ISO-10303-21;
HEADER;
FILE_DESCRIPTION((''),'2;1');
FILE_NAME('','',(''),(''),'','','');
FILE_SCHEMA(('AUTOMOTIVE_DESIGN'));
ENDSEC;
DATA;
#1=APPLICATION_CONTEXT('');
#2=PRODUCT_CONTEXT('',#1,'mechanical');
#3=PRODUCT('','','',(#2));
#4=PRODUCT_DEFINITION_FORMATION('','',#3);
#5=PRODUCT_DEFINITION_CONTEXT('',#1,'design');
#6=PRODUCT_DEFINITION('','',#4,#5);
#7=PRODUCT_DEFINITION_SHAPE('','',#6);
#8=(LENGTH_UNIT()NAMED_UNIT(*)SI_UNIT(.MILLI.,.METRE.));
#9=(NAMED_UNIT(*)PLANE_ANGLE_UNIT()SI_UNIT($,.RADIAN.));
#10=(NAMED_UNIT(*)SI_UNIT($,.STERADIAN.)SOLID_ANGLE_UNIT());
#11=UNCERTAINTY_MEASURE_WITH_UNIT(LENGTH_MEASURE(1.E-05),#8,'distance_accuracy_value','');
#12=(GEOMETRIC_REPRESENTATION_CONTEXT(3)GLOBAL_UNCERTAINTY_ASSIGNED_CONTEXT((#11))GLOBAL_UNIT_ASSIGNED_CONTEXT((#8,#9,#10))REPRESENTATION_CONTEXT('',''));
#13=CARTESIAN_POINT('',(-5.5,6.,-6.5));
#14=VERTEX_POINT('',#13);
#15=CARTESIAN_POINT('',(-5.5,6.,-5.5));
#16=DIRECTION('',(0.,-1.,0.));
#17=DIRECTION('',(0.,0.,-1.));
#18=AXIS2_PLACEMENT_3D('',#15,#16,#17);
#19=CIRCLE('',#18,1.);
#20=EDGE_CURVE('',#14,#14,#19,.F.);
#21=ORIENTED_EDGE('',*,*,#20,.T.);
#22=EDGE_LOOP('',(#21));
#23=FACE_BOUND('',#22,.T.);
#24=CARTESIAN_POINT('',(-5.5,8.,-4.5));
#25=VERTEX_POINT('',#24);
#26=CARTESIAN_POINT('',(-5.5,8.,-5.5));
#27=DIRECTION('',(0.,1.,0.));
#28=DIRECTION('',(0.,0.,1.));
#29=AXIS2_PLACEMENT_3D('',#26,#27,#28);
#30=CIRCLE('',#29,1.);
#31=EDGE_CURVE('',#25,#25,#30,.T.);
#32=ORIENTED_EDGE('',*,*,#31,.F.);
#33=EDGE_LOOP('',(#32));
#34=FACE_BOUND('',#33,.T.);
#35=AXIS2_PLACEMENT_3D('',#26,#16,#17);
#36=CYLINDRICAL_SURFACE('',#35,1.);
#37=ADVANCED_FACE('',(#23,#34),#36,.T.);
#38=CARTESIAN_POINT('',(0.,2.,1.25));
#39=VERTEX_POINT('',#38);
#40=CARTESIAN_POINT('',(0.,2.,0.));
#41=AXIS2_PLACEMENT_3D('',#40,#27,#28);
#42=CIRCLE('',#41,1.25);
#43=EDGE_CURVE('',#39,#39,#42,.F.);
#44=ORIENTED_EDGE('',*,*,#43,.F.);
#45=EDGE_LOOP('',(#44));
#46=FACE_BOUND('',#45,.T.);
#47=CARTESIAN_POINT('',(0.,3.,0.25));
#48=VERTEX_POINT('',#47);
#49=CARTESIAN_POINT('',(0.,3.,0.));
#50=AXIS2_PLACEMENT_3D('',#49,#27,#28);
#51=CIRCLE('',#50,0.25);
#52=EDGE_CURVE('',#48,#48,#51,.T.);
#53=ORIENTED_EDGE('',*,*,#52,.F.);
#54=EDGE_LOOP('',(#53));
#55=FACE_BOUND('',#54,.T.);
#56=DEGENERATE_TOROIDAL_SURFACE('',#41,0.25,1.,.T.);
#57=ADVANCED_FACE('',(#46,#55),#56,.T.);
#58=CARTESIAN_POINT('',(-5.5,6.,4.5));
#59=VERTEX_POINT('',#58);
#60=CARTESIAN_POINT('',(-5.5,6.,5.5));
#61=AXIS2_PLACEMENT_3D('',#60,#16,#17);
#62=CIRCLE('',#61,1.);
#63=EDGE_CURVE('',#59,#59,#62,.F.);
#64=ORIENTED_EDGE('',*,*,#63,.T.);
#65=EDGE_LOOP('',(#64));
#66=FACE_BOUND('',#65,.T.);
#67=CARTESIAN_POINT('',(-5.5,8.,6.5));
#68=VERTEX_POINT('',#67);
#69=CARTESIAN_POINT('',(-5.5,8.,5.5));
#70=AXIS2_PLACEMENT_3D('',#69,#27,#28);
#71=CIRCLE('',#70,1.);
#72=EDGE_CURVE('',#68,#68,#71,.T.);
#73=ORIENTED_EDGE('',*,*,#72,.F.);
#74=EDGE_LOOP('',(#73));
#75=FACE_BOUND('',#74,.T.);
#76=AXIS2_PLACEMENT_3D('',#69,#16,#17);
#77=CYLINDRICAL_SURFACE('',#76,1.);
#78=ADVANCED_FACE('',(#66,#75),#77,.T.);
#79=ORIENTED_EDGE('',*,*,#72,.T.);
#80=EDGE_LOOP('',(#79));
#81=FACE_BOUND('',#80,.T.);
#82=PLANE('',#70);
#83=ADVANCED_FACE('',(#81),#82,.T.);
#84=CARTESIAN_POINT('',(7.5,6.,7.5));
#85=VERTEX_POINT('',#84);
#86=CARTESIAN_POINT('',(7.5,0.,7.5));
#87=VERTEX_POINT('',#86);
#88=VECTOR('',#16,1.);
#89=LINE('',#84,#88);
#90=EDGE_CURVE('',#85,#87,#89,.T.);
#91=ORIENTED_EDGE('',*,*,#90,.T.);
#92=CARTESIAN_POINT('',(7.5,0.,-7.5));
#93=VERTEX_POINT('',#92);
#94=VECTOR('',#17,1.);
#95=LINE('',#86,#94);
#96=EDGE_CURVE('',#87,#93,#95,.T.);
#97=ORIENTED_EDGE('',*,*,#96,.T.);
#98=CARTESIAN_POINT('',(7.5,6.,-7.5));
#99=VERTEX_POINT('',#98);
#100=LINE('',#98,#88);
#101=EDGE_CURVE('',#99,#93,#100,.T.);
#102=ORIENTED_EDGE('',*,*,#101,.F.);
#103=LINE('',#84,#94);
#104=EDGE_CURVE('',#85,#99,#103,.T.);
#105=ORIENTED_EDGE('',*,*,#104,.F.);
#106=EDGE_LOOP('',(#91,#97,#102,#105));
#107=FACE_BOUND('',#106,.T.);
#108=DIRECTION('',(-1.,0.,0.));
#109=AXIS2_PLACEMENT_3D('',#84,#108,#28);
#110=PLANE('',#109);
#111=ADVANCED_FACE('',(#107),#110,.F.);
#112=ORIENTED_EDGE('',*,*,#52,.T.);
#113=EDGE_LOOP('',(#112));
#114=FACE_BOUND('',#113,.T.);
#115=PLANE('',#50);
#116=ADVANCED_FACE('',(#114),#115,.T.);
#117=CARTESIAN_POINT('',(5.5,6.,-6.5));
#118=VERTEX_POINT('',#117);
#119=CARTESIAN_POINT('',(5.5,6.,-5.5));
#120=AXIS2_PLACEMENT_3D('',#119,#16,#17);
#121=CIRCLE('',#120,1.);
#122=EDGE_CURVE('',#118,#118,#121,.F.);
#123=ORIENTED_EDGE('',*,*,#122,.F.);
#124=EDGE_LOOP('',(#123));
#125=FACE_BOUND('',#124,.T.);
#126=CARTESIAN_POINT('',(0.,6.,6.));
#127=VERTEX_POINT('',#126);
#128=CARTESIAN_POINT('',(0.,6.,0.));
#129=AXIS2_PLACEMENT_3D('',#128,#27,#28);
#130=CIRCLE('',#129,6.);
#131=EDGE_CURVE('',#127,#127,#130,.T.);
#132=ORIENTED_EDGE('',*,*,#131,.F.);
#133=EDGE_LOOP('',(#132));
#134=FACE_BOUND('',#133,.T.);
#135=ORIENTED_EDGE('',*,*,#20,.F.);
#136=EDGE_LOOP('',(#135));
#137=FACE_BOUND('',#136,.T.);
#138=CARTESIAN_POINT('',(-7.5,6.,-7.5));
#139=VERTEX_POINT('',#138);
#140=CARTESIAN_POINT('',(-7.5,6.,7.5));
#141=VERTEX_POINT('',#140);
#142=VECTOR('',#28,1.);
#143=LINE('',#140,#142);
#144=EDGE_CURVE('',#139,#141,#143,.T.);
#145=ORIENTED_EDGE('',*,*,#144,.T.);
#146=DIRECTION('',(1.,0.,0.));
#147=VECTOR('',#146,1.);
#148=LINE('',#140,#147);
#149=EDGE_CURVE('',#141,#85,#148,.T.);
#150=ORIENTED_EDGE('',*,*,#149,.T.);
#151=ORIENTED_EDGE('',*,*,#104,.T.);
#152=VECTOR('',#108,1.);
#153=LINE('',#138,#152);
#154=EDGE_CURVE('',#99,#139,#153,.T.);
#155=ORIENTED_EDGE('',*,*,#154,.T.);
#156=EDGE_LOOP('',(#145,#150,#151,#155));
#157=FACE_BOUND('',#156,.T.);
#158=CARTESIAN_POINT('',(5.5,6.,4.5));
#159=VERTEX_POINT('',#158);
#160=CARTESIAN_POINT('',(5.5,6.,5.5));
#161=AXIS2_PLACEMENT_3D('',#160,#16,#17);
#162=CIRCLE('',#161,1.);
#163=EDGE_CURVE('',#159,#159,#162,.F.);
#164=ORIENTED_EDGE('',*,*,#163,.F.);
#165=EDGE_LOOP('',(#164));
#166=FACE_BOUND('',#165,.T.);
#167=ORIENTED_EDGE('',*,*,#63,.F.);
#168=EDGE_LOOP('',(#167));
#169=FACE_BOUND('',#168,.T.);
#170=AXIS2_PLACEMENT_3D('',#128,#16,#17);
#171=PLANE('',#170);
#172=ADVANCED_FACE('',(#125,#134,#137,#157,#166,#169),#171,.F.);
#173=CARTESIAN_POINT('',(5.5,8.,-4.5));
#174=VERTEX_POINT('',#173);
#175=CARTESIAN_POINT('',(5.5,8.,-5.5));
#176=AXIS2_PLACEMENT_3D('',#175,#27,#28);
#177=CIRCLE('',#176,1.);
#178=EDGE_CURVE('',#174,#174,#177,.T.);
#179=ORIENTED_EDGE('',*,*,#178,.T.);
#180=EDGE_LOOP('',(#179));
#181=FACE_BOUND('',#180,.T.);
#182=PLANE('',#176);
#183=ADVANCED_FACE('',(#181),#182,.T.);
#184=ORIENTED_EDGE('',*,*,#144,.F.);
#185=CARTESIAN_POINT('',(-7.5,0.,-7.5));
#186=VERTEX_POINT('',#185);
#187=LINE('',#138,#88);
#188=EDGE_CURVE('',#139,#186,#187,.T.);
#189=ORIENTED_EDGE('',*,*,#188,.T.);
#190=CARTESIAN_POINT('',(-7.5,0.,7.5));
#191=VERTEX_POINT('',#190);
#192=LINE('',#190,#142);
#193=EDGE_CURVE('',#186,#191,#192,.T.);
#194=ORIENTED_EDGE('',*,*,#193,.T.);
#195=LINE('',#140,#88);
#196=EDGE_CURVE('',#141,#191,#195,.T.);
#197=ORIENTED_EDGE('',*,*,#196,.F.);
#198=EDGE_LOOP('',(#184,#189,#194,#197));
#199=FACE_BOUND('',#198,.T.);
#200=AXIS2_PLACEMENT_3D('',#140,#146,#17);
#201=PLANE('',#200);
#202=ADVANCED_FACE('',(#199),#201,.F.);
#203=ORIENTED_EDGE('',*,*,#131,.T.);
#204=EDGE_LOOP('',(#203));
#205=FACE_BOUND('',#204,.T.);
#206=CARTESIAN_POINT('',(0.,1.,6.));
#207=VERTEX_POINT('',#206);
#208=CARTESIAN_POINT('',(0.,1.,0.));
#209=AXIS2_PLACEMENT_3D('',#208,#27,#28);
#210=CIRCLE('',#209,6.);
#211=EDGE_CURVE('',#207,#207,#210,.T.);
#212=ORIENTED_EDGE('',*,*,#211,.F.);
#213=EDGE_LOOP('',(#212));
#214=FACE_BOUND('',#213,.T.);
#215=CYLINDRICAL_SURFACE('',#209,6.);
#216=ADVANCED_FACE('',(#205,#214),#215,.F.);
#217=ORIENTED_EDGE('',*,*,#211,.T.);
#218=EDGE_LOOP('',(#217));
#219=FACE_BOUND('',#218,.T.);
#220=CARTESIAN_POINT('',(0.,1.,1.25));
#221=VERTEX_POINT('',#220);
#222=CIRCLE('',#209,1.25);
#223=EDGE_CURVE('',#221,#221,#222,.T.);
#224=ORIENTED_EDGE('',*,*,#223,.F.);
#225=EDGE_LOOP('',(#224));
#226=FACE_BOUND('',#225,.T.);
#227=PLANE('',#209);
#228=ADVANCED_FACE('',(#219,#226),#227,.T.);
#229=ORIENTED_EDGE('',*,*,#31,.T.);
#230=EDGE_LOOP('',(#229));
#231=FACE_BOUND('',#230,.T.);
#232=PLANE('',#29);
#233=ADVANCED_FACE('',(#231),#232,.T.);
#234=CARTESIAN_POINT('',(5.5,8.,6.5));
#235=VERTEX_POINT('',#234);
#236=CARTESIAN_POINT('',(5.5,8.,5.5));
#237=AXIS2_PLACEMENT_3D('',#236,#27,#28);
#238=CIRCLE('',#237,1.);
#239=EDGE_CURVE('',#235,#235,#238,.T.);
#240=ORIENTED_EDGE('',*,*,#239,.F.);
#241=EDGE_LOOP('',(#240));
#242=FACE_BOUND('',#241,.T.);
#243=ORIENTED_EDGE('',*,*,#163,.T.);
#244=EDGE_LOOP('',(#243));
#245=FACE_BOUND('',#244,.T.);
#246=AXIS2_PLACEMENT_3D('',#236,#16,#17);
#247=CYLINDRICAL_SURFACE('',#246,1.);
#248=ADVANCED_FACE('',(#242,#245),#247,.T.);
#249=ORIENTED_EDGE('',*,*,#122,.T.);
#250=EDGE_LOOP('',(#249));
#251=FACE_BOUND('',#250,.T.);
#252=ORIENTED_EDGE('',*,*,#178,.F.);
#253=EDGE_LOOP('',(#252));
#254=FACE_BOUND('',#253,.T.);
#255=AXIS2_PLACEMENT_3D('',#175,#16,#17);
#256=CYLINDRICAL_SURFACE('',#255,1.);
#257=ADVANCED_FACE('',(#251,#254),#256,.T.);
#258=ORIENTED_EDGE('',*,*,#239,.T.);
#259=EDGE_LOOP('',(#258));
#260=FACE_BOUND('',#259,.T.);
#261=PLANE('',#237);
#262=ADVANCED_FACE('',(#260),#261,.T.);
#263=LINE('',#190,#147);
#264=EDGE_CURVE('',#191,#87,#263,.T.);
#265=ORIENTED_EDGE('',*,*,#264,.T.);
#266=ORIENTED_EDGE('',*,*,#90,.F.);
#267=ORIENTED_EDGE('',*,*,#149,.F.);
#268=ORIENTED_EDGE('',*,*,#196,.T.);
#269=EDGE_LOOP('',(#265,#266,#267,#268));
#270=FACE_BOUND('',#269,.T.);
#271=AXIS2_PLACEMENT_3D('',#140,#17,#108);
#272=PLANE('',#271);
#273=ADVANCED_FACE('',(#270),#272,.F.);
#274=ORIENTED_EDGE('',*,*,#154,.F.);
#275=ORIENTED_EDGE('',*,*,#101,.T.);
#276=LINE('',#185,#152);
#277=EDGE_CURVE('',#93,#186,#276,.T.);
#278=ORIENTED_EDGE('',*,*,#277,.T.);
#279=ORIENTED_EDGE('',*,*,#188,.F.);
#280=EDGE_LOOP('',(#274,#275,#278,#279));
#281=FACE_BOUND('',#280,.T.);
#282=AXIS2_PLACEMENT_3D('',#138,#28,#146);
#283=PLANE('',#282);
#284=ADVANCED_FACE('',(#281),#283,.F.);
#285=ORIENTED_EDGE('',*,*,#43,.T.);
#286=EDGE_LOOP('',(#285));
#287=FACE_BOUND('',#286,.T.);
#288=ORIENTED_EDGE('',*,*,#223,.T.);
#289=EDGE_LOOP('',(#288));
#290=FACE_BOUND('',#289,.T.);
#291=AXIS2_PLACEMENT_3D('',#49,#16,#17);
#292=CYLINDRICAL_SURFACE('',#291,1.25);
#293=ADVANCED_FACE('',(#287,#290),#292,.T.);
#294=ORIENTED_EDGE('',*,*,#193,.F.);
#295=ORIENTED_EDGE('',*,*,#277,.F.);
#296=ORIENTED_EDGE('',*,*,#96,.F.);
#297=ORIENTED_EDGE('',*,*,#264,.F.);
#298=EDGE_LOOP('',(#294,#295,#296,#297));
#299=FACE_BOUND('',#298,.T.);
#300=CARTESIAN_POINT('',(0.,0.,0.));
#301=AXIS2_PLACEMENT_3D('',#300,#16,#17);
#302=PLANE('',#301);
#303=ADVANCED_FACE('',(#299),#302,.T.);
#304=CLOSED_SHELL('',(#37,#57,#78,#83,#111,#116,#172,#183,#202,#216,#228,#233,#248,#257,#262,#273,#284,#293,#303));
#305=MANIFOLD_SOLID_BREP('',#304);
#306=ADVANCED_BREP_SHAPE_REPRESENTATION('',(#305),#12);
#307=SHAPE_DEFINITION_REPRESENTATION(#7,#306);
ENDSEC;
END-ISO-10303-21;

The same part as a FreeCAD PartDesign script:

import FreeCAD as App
import Part
import Sketcher
Q = App.Units.Quantity


def edges_at(feature, points):
    """Names of the edges that pass closest to the given points."""
    edges = feature.Shape.Edges
    near = lambda p: min(range(len(edges)), key=lambda i: edges[i].distToShape(Part.Vertex(*p))[0])
    return sorted({f"Edge{near(p) + 1}" for p in points})


def add_polygon(sketch, points):
    """Adds a closed chain of lines whose ends are joined by coincident constraints."""
    first, n = sketch.GeometryCount, len(points)
    for a, b in zip(points, points[1:] + points[:1]):
        sketch.addGeometry(Part.LineSegment(App.Vector(*a, 0), App.Vector(*b, 0)), False)
    for i in range(n):
        sketch.addConstraint(Sketcher.Constraint("Coincident", first + i, 2, first + (i + 1) % n, 1))

doc = App.newDocument("Part")
body = doc.addObject("PartDesign::Body", "Body")

# Sketch on XZ plane
sketch1 = doc.addObject("Sketcher::SketchObject", "Sketch")
body.addObject(sketch1)
sketch1.AttachmentSupport = (doc.XZ_Plane, [""])
sketch1.MapMode = "FlatFace"
add_polygon(sketch1, [(-8, -8), (-8, 8), (8, 8), (8, -8)])  # lines 0-3
sketch1.addConstraint(Sketcher.Constraint("Vertical", 0))
sketch1.addConstraint(Sketcher.Constraint("Horizontal", 1))
sketch1.addConstraint(Sketcher.Constraint("Vertical", 2))
sketch1.addConstraint(Sketcher.Constraint("Horizontal", 3))
sketch1.addConstraint(Sketcher.Constraint("Symmetric", 0, 2, 2, 2, -1, 1))
sketch1.addConstraint(Sketcher.Constraint("Equal", 3, 0))
sketch1.addConstraint(Sketcher.Constraint("DistanceX", 1, 1, 1, 2, Q("15 mm")))
pad1 = doc.addObject("PartDesign::Pad", "Pad")
body.addObject(pad1)
pad1.Profile = sketch1
pad1.Length = 6
pad1.Reversed = True

# Sketch on XZ plane
sketch2 = doc.addObject("Sketcher::SketchObject", "Sketch001")
body.addObject(sketch2)
sketch2.AttachmentSupport = (doc.XZ_Plane, [""])
sketch2.MapMode = "FlatFace"
sketch2.AttachmentOffset = App.Placement(App.Vector(0, 0, -6), App.Rotation())
sketch2.addGeometry(Part.Circle(App.Vector(0, 0, 0), App.Vector(0, 0, 1), 6), False)
sketch2.addConstraint(Sketcher.Constraint("Coincident", 0, 3, -1, 1))
sketch2.addConstraint(Sketcher.Constraint("Diameter", 0, Q("12 mm")))
pocket1 = doc.addObject("PartDesign::Pocket", "Pocket")
body.addObject(pocket1)
pocket1.Profile = sketch2
pocket1.Length = 5
pocket1.Reversed = True

# Sketch on XZ plane
sketch3 = doc.addObject("Sketcher::SketchObject", "Sketch002")
body.addObject(sketch3)
sketch3.AttachmentSupport = (doc.XZ_Plane, [""])
sketch3.MapMode = "FlatFace"
sketch3.AttachmentOffset = App.Placement(App.Vector(0, 0, -1), App.Rotation())
sketch3.addGeometry(Part.Circle(App.Vector(0, 0, 0), App.Vector(0, 0, 1), 1.2), False)
sketch3.addConstraint(Sketcher.Constraint("Coincident", 0, 3, -1, 1))
sketch3.addConstraint(Sketcher.Constraint("Diameter", 0, Q("2.5 mm")))
pad2 = doc.addObject("PartDesign::Pad", "Pad001")
body.addObject(pad2)
pad2.Profile = sketch3
pad2.Length = 2
pad2.Reversed = True
doc.recompute()

fillet = doc.addObject("PartDesign::Fillet", "Fillet")
body.addObject(fillet)
fillet.Base = (pad2, edges_at(pad2, [(-1.25, 3, 0)]))
fillet.Radius = 1

# Sketch on XZ plane
sketch4 = doc.addObject("Sketcher::SketchObject", "Sketch003")
body.addObject(sketch4)
sketch4.AttachmentSupport = (doc.XZ_Plane, [""])
sketch4.MapMode = "FlatFace"
sketch4.AttachmentOffset = App.Placement(App.Vector(0, 0, -6), App.Rotation())
sketch4.addGeometry(Part.Circle(App.Vector(-5.5, -5.5, 0), App.Vector(0, 0, 1), 1), False)
sketch4.addGeometry(Part.Circle(App.Vector(5.5, -5.5, 0), App.Vector(0, 0, 1), 1), False)
sketch4.addGeometry(Part.Circle(App.Vector(-5.5, 5.5, 0), App.Vector(0, 0, 1), 1), False)
sketch4.addGeometry(Part.Circle(App.Vector(5.5, 5.5, 0), App.Vector(0, 0, 1), 1), False)
sketch4.addConstraint(Sketcher.Constraint("Equal", 0, 1))
sketch4.addConstraint(Sketcher.Constraint("Equal", 1, 2))
sketch4.addConstraint(Sketcher.Constraint("Equal", 2, 3))
sketch4.addConstraint(Sketcher.Constraint("Symmetric", 1, 3, 2, 3, -1, 1))
sketch4.addConstraint(Sketcher.Constraint("Symmetric", 0, 3, 3, 3, -1, 1))
sketch4.addConstraint(Sketcher.Constraint("Symmetric", 0, 3, 1, 3, -2))
sketch4.addConstraint(Sketcher.Constraint("Diameter", 0, Q("2 mm")))
sketch4.addConstraint(Sketcher.Constraint("DistanceX", 0, 3, 1, 3, Q("11 mm")))
sketch4.addConstraint(Sketcher.Constraint("DistanceY", 0, 3, 2, 3, Q("11 mm")))
pad3 = doc.addObject("PartDesign::Pad", "Pad002")
body.addObject(pad3)
pad3.Profile = sketch4
pad3.Length = 2
pad3.Reversed = True

doc.recompute()
